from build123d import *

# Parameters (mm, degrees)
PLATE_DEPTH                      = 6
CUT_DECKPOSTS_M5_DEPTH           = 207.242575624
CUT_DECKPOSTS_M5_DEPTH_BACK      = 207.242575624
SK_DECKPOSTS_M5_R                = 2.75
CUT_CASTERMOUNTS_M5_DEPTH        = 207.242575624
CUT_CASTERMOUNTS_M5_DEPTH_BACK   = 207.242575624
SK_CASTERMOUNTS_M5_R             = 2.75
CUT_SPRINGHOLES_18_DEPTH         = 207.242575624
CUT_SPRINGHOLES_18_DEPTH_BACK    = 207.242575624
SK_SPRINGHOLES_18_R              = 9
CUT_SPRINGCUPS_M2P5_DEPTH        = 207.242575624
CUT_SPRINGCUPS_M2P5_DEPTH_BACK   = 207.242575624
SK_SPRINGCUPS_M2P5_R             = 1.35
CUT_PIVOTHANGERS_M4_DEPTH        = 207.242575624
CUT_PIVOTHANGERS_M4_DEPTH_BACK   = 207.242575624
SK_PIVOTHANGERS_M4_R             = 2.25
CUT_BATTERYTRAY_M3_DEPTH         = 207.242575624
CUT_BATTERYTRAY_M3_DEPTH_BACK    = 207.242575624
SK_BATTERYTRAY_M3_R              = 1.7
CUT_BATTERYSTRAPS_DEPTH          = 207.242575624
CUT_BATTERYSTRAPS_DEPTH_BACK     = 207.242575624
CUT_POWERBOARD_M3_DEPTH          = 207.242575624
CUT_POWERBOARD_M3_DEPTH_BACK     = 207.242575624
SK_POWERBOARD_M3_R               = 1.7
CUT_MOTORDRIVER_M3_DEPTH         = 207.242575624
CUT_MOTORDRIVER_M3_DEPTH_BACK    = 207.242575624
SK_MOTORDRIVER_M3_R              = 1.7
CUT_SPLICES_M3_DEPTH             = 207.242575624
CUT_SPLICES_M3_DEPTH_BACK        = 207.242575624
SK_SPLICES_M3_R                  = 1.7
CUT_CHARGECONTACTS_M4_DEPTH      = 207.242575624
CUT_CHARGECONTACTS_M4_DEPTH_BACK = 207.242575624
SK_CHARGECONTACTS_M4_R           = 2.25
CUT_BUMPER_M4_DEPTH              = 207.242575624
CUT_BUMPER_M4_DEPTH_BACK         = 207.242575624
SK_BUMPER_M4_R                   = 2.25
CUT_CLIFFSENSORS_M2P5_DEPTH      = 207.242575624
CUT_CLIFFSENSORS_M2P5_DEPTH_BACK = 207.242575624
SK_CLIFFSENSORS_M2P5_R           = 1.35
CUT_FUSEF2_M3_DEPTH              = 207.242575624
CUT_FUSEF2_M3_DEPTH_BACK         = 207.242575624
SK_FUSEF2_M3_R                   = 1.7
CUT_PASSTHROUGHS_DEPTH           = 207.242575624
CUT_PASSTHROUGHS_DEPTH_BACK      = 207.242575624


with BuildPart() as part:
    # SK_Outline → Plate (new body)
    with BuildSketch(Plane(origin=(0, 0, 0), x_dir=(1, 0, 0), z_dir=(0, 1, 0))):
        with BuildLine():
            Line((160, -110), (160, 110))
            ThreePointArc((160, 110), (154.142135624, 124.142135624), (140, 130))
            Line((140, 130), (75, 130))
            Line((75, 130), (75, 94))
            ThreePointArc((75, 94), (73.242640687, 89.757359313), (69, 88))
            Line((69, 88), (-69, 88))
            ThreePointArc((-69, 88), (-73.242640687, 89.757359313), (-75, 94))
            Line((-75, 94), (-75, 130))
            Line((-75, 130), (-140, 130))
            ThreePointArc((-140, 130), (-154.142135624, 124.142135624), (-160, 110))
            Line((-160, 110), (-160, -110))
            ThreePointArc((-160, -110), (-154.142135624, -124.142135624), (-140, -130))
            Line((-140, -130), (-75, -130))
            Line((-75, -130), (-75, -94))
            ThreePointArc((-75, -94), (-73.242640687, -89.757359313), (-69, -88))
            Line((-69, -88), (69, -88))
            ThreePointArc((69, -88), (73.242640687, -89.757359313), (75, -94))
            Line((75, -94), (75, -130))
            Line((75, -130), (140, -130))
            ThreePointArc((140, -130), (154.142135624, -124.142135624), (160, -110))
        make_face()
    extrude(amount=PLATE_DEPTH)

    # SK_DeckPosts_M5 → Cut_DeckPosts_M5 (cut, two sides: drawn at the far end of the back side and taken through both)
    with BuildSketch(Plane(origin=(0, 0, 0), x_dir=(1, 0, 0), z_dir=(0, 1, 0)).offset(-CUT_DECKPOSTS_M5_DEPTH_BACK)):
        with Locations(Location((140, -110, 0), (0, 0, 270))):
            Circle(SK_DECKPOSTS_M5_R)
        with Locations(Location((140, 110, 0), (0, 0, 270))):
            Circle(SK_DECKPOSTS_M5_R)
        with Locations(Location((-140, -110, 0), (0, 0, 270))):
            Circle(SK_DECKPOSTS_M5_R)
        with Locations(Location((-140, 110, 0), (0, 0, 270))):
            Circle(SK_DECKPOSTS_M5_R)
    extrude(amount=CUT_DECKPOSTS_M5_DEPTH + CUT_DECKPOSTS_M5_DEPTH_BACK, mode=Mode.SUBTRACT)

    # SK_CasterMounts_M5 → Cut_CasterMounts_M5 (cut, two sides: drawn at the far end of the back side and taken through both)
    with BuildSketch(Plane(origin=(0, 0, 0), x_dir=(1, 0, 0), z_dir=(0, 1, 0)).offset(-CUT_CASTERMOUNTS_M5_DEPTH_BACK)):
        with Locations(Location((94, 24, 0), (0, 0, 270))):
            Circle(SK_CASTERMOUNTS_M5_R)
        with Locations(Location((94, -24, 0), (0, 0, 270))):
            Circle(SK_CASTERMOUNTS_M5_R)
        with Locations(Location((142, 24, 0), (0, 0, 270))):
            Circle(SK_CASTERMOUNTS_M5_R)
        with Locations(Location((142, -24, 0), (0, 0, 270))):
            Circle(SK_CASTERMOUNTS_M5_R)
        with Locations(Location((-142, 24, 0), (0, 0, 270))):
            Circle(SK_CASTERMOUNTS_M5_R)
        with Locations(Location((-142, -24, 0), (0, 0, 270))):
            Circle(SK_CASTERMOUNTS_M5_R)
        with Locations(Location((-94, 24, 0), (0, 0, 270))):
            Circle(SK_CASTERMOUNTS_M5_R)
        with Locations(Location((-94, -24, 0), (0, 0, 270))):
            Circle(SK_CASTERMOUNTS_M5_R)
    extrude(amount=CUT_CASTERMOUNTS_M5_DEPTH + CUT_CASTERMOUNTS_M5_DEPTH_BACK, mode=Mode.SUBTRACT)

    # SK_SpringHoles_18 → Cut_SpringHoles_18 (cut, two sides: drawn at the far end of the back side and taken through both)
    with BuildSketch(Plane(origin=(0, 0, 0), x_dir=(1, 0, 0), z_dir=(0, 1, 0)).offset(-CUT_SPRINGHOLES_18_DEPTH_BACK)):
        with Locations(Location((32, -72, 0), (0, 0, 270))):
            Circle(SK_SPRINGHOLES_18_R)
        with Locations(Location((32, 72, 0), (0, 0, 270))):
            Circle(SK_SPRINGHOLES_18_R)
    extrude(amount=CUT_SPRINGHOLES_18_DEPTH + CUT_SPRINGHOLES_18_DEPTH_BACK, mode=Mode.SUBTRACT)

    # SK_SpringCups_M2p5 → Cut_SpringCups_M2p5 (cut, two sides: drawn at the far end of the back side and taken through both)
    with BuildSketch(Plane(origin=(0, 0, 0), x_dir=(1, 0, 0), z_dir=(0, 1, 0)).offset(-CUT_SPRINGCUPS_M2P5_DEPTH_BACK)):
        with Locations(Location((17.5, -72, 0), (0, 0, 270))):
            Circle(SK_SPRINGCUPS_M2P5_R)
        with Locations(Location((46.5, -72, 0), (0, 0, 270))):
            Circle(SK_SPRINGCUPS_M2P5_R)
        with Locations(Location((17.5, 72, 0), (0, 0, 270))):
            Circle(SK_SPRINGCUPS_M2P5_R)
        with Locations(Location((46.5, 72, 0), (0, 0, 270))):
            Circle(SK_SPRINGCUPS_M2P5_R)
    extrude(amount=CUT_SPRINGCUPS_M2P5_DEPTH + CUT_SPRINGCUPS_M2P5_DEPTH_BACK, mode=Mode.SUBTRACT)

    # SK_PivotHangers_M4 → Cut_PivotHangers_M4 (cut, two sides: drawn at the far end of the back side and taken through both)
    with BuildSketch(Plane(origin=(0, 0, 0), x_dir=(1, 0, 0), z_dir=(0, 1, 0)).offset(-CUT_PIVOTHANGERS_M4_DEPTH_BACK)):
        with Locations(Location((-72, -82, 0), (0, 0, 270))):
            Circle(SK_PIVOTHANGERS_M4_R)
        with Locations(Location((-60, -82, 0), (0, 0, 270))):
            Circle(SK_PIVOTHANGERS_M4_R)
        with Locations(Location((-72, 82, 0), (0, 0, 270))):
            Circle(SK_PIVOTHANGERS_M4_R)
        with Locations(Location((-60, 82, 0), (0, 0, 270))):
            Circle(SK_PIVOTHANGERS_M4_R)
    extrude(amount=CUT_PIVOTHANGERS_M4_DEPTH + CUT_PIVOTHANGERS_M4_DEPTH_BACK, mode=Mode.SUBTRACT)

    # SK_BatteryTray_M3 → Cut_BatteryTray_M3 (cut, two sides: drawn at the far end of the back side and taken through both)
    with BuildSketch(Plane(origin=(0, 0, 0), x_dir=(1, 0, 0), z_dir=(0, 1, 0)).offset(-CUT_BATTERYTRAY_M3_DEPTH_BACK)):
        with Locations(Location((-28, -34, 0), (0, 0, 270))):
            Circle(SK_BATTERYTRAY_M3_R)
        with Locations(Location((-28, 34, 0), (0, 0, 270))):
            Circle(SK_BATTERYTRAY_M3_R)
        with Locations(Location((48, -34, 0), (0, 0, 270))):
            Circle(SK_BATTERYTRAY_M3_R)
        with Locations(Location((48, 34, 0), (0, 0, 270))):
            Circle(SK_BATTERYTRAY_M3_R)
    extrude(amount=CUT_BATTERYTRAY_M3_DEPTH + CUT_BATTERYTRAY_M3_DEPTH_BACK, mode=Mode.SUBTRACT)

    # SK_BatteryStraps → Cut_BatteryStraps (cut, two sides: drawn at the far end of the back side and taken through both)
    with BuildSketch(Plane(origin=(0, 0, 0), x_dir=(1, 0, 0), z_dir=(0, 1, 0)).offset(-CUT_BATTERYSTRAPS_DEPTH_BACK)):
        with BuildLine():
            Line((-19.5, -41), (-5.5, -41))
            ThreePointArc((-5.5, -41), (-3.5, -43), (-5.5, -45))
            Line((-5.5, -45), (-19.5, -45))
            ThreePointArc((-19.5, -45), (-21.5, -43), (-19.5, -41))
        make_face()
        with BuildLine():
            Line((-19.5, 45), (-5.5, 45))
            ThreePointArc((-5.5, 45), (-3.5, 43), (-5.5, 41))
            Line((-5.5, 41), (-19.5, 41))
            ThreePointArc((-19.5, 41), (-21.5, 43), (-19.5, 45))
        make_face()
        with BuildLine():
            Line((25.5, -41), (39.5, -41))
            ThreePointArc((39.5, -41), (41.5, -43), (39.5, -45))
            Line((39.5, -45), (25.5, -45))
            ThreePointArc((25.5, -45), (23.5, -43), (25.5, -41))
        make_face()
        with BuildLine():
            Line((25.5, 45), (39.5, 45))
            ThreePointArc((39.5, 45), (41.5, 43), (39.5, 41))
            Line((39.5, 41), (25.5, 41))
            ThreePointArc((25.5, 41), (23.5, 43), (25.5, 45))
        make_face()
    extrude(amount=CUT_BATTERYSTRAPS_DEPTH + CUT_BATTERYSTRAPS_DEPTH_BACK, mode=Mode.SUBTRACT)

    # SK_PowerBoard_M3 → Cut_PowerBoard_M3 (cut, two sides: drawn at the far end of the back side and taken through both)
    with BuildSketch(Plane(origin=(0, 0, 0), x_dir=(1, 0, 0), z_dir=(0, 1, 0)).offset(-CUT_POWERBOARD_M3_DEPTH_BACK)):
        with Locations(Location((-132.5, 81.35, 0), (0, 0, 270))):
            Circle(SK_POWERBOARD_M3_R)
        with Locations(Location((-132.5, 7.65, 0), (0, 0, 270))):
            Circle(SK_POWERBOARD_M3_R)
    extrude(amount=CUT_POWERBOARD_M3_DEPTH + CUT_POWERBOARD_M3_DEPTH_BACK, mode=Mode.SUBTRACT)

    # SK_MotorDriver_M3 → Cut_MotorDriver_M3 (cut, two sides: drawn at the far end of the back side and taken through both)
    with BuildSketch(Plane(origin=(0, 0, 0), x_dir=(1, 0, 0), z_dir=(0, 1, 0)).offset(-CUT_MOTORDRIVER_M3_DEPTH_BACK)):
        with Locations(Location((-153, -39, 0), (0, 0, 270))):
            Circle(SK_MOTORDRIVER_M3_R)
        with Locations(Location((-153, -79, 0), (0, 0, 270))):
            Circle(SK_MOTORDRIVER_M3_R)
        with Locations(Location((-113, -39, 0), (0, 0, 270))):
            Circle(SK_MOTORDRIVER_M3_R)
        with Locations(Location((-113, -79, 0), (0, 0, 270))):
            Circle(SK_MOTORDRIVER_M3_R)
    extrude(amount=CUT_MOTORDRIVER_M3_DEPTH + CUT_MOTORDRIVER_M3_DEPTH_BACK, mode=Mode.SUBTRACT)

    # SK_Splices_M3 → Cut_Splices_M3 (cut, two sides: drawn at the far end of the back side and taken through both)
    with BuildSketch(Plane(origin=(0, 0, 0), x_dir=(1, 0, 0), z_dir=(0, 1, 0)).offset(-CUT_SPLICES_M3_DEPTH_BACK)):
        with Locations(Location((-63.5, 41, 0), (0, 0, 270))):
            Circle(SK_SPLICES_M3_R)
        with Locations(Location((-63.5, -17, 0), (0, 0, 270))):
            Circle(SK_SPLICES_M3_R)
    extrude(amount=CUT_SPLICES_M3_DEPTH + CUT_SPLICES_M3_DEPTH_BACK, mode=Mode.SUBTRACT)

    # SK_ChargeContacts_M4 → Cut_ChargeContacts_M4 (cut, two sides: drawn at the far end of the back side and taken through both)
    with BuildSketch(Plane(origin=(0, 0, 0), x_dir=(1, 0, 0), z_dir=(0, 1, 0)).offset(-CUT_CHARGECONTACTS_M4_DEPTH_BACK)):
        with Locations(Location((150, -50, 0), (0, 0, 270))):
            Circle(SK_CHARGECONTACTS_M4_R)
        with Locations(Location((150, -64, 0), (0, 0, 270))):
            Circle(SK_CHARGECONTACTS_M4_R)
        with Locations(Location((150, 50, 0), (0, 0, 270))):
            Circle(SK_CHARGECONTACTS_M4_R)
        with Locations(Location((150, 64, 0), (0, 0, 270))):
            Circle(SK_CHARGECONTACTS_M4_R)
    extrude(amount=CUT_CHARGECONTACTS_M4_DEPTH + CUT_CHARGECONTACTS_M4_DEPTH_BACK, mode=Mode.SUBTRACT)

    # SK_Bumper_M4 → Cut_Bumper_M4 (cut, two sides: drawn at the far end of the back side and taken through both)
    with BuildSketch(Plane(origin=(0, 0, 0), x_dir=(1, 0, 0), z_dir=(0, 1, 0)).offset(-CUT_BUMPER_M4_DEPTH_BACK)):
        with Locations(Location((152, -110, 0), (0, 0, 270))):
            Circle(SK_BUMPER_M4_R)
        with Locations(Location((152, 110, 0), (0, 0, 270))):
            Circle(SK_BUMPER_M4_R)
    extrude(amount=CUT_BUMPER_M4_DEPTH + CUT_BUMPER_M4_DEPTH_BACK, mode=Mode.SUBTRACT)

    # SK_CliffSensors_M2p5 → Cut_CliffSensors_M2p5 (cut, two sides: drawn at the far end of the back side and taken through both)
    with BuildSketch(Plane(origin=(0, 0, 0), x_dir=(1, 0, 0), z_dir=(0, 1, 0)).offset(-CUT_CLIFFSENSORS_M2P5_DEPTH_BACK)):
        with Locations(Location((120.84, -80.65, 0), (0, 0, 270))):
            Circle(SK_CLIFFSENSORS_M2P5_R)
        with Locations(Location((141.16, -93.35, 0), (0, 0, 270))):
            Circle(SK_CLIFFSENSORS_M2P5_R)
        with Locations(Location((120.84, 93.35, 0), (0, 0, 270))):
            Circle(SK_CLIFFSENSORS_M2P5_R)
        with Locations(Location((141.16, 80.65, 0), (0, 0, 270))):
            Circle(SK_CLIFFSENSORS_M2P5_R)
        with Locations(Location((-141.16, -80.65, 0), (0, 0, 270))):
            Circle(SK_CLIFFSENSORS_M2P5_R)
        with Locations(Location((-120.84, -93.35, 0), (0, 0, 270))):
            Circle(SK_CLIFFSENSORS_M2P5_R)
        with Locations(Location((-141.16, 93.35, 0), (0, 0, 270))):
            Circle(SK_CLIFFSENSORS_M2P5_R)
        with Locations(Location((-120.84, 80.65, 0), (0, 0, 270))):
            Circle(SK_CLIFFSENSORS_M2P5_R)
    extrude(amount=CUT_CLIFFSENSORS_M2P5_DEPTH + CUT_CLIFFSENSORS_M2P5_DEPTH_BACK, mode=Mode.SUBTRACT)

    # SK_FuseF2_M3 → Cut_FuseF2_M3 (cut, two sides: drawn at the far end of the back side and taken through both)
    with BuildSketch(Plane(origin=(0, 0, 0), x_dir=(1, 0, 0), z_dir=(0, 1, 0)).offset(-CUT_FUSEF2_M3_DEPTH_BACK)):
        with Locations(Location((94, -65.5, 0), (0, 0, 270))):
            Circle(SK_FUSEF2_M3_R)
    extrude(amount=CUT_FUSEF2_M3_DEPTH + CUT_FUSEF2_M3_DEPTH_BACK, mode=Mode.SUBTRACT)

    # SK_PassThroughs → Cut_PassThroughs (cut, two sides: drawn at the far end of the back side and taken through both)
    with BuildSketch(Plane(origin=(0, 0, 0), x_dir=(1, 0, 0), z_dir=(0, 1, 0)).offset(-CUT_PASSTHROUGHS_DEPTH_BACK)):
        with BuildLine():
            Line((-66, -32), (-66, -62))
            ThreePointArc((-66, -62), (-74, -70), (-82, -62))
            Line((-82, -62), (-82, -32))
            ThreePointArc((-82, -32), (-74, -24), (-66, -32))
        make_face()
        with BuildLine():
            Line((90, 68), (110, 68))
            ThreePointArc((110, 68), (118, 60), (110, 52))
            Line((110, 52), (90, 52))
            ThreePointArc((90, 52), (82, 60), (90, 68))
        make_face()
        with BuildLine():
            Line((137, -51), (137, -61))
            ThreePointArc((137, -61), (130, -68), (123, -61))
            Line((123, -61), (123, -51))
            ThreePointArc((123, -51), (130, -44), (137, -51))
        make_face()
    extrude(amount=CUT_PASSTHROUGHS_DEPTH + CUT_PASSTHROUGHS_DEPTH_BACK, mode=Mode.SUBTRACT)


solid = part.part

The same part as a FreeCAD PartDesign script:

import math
import FreeCAD as App
import Part
import Sketcher

V = App.Vector
Q = App.Units.Quantity

doc = App.newDocument("Part")
body = doc.addObject("PartDesign::Body", "Body")

# Sketch on XZ plane
sketch1 = body.newObject("Sketcher::SketchObject", "Sketch")
sketch1.AttachmentSupport = (doc.getObject("XZ_Plane"), [""])
sketch1.MapMode = "FlatFace"
sketch1.addGeometry([
    Part.LineSegment(V(160, 110, 0), V(160, -110, 0)),  # 0
    Part.ArcOfCircle(Part.Circle(V(140, -110, 0), V(0, 0, 1), 20), math.radians(-90), math.radians(0)),  # 1
    Part.LineSegment(V(140, -130, 0), V(75, -130, 0)),  # 2
    Part.LineSegment(V(75, -130, 0), V(75, -94, 0)),  # 3
    Part.ArcOfCircle(Part.Circle(V(69, -94, 0), V(0, 0, 1), 6), math.radians(0), math.radians(90)),  # 4
    Part.LineSegment(V(69, -88, 0), V(-69, -88, 0)),  # 5
    Part.ArcOfCircle(Part.Circle(V(-69, -94, 0), V(0, 0, 1), 6), math.radians(90), math.radians(180)),  # 6
    Part.LineSegment(V(-75, -94, 0), V(-75, -130, 0)),  # 7
    Part.LineSegment(V(-75, -130, 0), V(-140, -130, 0)),  # 8
    Part.ArcOfCircle(Part.Circle(V(-140, -110, 0), V(0, 0, 1), 20), math.radians(180), math.radians(270)),  # 9
    Part.LineSegment(V(-160, -110, 0), V(-160, 110, 0)),  # 10
    Part.ArcOfCircle(Part.Circle(V(-140, 110, 0), V(0, 0, 1), 20), math.radians(90), math.radians(180)),  # 11
    Part.LineSegment(V(-140, 130, 0), V(-75, 130, 0)),  # 12
    Part.LineSegment(V(-75, 130, 0), V(-75, 94, 0)),  # 13
    Part.ArcOfCircle(Part.Circle(V(-69, 94, 0), V(0, 0, 1), 6), math.radians(180), math.radians(270)),  # 14
    Part.LineSegment(V(-69, 88, 0), V(69, 88, 0)),  # 15
    Part.ArcOfCircle(Part.Circle(V(69, 94, 0), V(0, 0, 1), 6), math.radians(-90), math.radians(0)),  # 16
    Part.LineSegment(V(75, 94, 0), V(75, 130, 0)),  # 17
    Part.LineSegment(V(75, 130, 0), V(140, 130, 0)),  # 18
    Part.ArcOfCircle(Part.Circle(V(140, 110, 0), V(0, 0, 1), 20), math.radians(0), math.radians(90)),  # 19
], False)
sketch1.addConstraint([
    Sketcher.Constraint("Tangent", 0, 2, 1, 2),
    Sketcher.Constraint("Tangent", 1, 1, 2, 1),
    Sketcher.Constraint("Coincident", 2, 2, 3, 1),
    Sketcher.Constraint("Tangent", 3, 2, 4, 1),
    Sketcher.Constraint("Tangent", 4, 2, 5, 1),
    Sketcher.Constraint("Tangent", 5, 2, 6, 1),
    Sketcher.Constraint("Tangent", 6, 2, 7, 1),
    Sketcher.Constraint("Coincident", 7, 2, 8, 1),
    Sketcher.Constraint("Tangent", 8, 2, 9, 2),
    Sketcher.Constraint("Tangent", 9, 1, 10, 1),
    Sketcher.Constraint("Tangent", 10, 2, 11, 2),
    Sketcher.Constraint("Tangent", 11, 1, 12, 1),
    Sketcher.Constraint("Coincident", 12, 2, 13, 1),
    Sketcher.Constraint("Tangent", 13, 2, 14, 1),
    Sketcher.Constraint("Tangent", 14, 2, 15, 1),
    Sketcher.Constraint("Tangent", 15, 2, 16, 1),
    Sketcher.Constraint("Tangent", 16, 2, 17, 1),
    Sketcher.Constraint("Coincident", 17, 2, 18, 1),
    Sketcher.Constraint("Tangent", 18, 2, 19, 2),
    Sketcher.Constraint("Tangent", 19, 1, 0, 1),
    Sketcher.Constraint("Vertical", 0),
    Sketcher.Constraint("Horizontal", 2),
    Sketcher.Constraint("Vertical", 3),
    Sketcher.Constraint("Horizontal", 5),
    Sketcher.Constraint("Vertical", 7),
    Sketcher.Constraint("Horizontal", 8),
    Sketcher.Constraint("Vertical", 10),
    Sketcher.Constraint("Horizontal", 12),
    Sketcher.Constraint("Vertical", 13),
    Sketcher.Constraint("Horizontal", 15),
    Sketcher.Constraint("Vertical", 17),
    Sketcher.Constraint("Horizontal", 18),
    Sketcher.Constraint("Equal", 4, 6),
    Sketcher.Constraint("Equal", 1, 9),
    Sketcher.Constraint("Equal", 9, 11),
    Sketcher.Constraint("Equal", 6, 14),
    Sketcher.Constraint("Equal", 14, 16),
    Sketcher.Constraint("Equal", 11, 19),
    Sketcher.Constraint("Symmetric", 1, 3, 11, 3, -1, 1),
    Sketcher.Constraint("Symmetric", 4, 3, 14, 3, -1, 1),
    Sketcher.Constraint("Symmetric", 7, 2, 17, 2, -1, 1),
    Sketcher.Constraint("Symmetric", 2, 2, 7, 2, -2),
    Sketcher.Constraint("Radius", 1, Q("20 mm")),
    Sketcher.Constraint("Radius", 4, Q("6 mm")),
    Sketcher.Constraint("DistanceX", 2, 2, 2, 1, Q("65 mm")),
    Sketcher.Constraint("DistanceX", 5, 2, 5, 1, Q("138 mm")),
    Sketcher.Constraint("DistanceY", 0, 2, 0, 1, Q("220 mm")),
    Sketcher.Constraint("DistanceY", 3, 1, 3, 2, Q("36 mm")),
])
pad1 = body.newObject("PartDesign::Pad", "Pad")
pad1.Profile = sketch1
pad1.Length = 6
pad1.Reversed = True

# Sketch on XZ plane
sketch2 = body.newObject("Sketcher::SketchObject", "Sketch001")
sketch2.AttachmentSupport = (doc.getObject("XZ_Plane"), [""])
sketch2.MapMode = "FlatFace"
sketch2.addGeometry([
    Part.Circle(V(140, 110, 0), V(0, 0, 1), 2.8),
    Part.Circle(V(140, -110, 0), V(0, 0, 1), 2.8),
    Part.Circle(V(-140, 110, 0), V(0, 0, 1), 2.8),
    Part.Circle(V(-140, -110, 0), V(0, 0, 1), 2.8),
], False)
sketch2.addConstraint([
    Sketcher.Constraint("Equal", 0, 1),
    Sketcher.Constraint("Equal", 1, 2),
    Sketcher.Constraint("Equal", 2, 3),
    Sketcher.Constraint("Symmetric", 1, 3, 2, 3, -1, 1),
    Sketcher.Constraint("Symmetric", 0, 3, 3, 3, -1, 1),
    Sketcher.Constraint("Symmetric", 0, 3, 2, 3, -2),
    Sketcher.Constraint("Diameter", 0, Q("5.5 mm")),
    Sketcher.Constraint("DistanceX", -1, 1, 0, 3, Q("140 mm")),
    Sketcher.Constraint("DistanceY", -1, 1, 0, 3, Q("110 mm")),
])
pocket1 = body.newObject("PartDesign::Pocket", "Pocket")
pocket1.Profile = sketch2
pocket1.Type = "ThroughAll"
pocket1.Midplane = True

# Sketch on XZ plane
sketch3 = body.newObject("Sketcher::SketchObject", "Sketch002")
sketch3.AttachmentSupport = (doc.getObject("XZ_Plane"), [""])
sketch3.MapMode = "FlatFace"
sketch3.addGeometry([
    Part.Circle(V(94, -24, 0), V(0, 0, 1), 2.8),  # 0
    Part.Circle(V(94, 24, 0), V(0, 0, 1), 2.8),  # 1
    Part.Circle(V(142, -24, 0), V(0, 0, 1), 2.8),  # 2
    Part.Circle(V(142, 24, 0), V(0, 0, 1), 2.8),  # 3
    Part.Circle(V(-142, -24, 0), V(0, 0, 1), 2.8),  # 4
    Part.Circle(V(-142, 24, 0), V(0, 0, 1), 2.8),  # 5
    Part.Circle(V(-94, -24, 0), V(0, 0, 1), 2.8),  # 6
    Part.Circle(V(-94, 24, 0), V(0, 0, 1), 2.8),  # 7
], False)
sketch3.addConstraint([
    Sketcher.Constraint("Equal", 0, 1),
    Sketcher.Constraint("Equal", 1, 2),
    Sketcher.Constraint("Equal", 2, 3),
    Sketcher.Constraint("Equal", 3, 4),
    Sketcher.Constraint("Equal", 4, 5),
    Sketcher.Constraint("Equal", 5, 6),
    Sketcher.Constraint("Equal", 6, 7),
    Sketcher.Constraint("Symmetric", 3, 3, 4, 3, -1, 1),
    Sketcher.Constraint("Symmetric", 2, 3, 5, 3, -1, 1),
    Sketcher.Constraint("Symmetric", 1, 3, 6, 3, -1, 1),
    Sketcher.Constraint("Symmetric", 0, 3, 7, 3, -1, 1),
    Sketcher.Constraint("Symmetric", 2, 3, 4, 3, -2),
    Sketcher.Constraint("Symmetric", 0, 3, 6, 3, -2),
    Sketcher.Constraint("Horizontal", 0, 3, 2, 3),
    Sketcher.Constraint("Diameter", 0, Q("5.5 mm")),
    Sketcher.Constraint("DistanceX", -1, 1, 0, 3, Q("94 mm")),
    Sketcher.Constraint("DistanceY", 0, 3, -1, 1, Q("24 mm")),
    Sketcher.Constraint("DistanceX", -1, 1, 2, 3, Q("142 mm")),
])
pocket2 = body.newObject("PartDesign::Pocket", "Pocket001")
pocket2.Profile = sketch3
pocket2.Type = "ThroughAll"
pocket2.Midplane = True

# Sketch on XZ plane
sketch4 = body.newObject("Sketcher::SketchObject", "Sketch003")
sketch4.AttachmentSupport = (doc.getObject("XZ_Plane"), [""])
sketch4.MapMode = "FlatFace"
sketch4.addGeometry([
    Part.Circle(V(32, 72, 0), V(0, 0, 1), 9),
    Part.Circle(V(32, -72, 0), V(0, 0, 1), 9),
], False)
sketch4.addConstraint([
    Sketcher.Constraint("Equal", 0, 1),
    Sketcher.Constraint("Symmetric", 0, 3, 1, 3, -1),
    Sketcher.Constraint("Diameter", 0, Q("18 mm")),
    Sketcher.Constraint("DistanceX", -1, 1, 0, 3, Q("32 mm")),
    Sketcher.Constraint("DistanceY", -1, 1, 0, 3, Q("72 mm")),
])
pocket3 = body.newObject("PartDesign::Pocket", "Pocket002")
pocket3.Profile = sketch4
pocket3.Type = "ThroughAll"
pocket3.Midplane = True

# Sketch on XZ plane
sketch5 = body.newObject("Sketcher::SketchObject", "Sketch004")
sketch5.AttachmentSupport = (doc.getObject("XZ_Plane"), [""])
sketch5.MapMode = "FlatFace"
sketch5.addGeometry([
    Part.Circle(V(17.5, 72, 0), V(0, 0, 1), 1.4),
    Part.Circle(V(46.5, 72, 0), V(0, 0, 1), 1.4),
    Part.Circle(V(17.5, -72, 0), V(0, 0, 1), 1.4),
    Part.Circle(V(46.5, -72, 0), V(0, 0, 1), 1.4),
], False)
sketch5.addConstraint([
    Sketcher.Constraint("Equal", 0, 1),
    Sketcher.Constraint("Equal", 1, 2),
    Sketcher.Constraint("Equal", 2, 3),
    Sketcher.Constraint("Symmetric", 0, 3, 2, 3, -1),
    Sketcher.Constraint("Symmetric", 1, 3, 3, 3, -1),
    Sketcher.Constraint("Horizontal", 0, 3, 1, 3),
    Sketcher.Constraint("Diameter", 0, Q("2.7 mm")),
    Sketcher.Constraint("DistanceY", -1, 1, 0, 3, Q("72 mm")),
    Sketcher.Constraint("DistanceX", 0, 3, 1, 3, Q("29 mm")),
    Sketcher.Constraint("DistanceX", -1, 1, 0, 3, Q("17.5 mm")),
])
pocket4 = body.newObject("PartDesign::Pocket", "Pocket003")
pocket4.Profile = sketch5
pocket4.Type = "ThroughAll"
pocket4.Midplane = True

# Sketch on XZ plane
sketch6 = body.newObject("Sketcher::SketchObject", "Sketch005")
sketch6.AttachmentSupport = (doc.getObject("XZ_Plane"), [""])
sketch6.MapMode = "FlatFace"
sketch6.addGeometry([
    Part.Circle(V(-72, 82, 0), V(0, 0, 1), 2.2),
    Part.Circle(V(-60, 82, 0), V(0, 0, 1), 2.2),
    Part.Circle(V(-72, -82, 0), V(0, 0, 1), 2.2),
    Part.Circle(V(-60, -82, 0), V(0, 0, 1), 2.2),
], False)
sketch6.addConstraint([
    Sketcher.Constraint("Equal", 0, 1),
    Sketcher.Constraint("Equal", 1, 2),
    Sketcher.Constraint("Equal", 2, 3),
    Sketcher.Constraint("Symmetric", 0, 3, 2, 3, -1),
    Sketcher.Constraint("Symmetric", 1, 3, 3, 3, -1),
    Sketcher.Constraint("Horizontal", 0, 3, 1, 3),
    Sketcher.Constraint("Diameter", 0, Q("4.5 mm")),
    Sketcher.Constraint("DistanceX", 0, 3, -1, 1, Q("72 mm")),
    Sketcher.Constraint("DistanceY", -1, 1, 0, 3, Q("82 mm")),
    Sketcher.Constraint("DistanceX", 1, 3, -1, 1, Q("60 mm")),
])
pocket5 = body.newObject("PartDesign::Pocket", "Pocket004")
pocket5.Profile = sketch6
pocket5.Type = "ThroughAll"
pocket5.Midplane = True

# Sketch on XZ plane
sketch7 = body.newObject("Sketcher::SketchObject", "Sketch006")
sketch7.AttachmentSupport = (doc.getObject("XZ_Plane"), [""])
sketch7.MapMode = "FlatFace"
sketch7.addGeometry([
    Part.Circle(V(-28, 34, 0), V(0, 0, 1), 1.7),
    Part.Circle(V(-28, -34, 0), V(0, 0, 1), 1.7),
    Part.Circle(V(48, 34, 0), V(0, 0, 1), 1.7),
    Part.Circle(V(48, -34, 0), V(0, 0, 1), 1.7),
], False)
sketch7.addConstraint([
    Sketcher.Constraint("Equal", 0, 1),
    Sketcher.Constraint("Equal", 1, 2),
    Sketcher.Constraint("Equal", 2, 3),
    Sketcher.Constraint("Symmetric", 0, 3, 1, 3, -1),
    Sketcher.Constraint("Symmetric", 2, 3, 3, 3, -1),
    Sketcher.Constraint("Horizontal", 0, 3, 2, 3),
    Sketcher.Constraint("Diameter", 0, Q("3.4 mm")),
    Sketcher.Constraint("DistanceX", 0, 3, -1, 1, Q("28 mm")),
    Sketcher.Constraint("DistanceY", -1, 1, 0, 3, Q("34 mm")),
    Sketcher.Constraint("DistanceX", -1, 1, 2, 3, Q("48 mm")),
])
pocket6 = body.newObject("PartDesign::Pocket", "Pocket005")
pocket6.Profile = sketch7
pocket6.Type = "ThroughAll"
pocket6.Midplane = True

# Sketch on XZ plane
sketch8 = body.newObject("Sketcher::SketchObject", "Sketch007")
sketch8.AttachmentSupport = (doc.getObject("XZ_Plane"), [""])
sketch8.MapMode = "FlatFace"
sketch8.addGeometry([
    Part.LineSegment(V(-5.5, 41, 0), V(-19.5, 41, 0)),  # 0
    Part.ArcOfCircle(Part.Circle(V(-19.5, 43, 0), V(0, 0, 1), 2), math.radians(90), math.radians(270)),  # 1
    Part.LineSegment(V(-19.5, 45, 0), V(-5.5, 45, 0)),  # 2
    Part.ArcOfCircle(Part.Circle(V(-5.5, 43, 0), V(0, 0, 1), 2), math.radians(-90), math.radians(90)),  # 3
    Part.LineSegment(V(-5.5, -45, 0), V(-19.5, -45, 0)),  # 4
    Part.ArcOfCircle(Part.Circle(V(-19.5, -43, 0), V(0, 0, 1), 2), math.radians(90), math.radians(270)),  # 5
    Part.LineSegment(V(-19.5, -41, 0), V(-5.5, -41, 0)),  # 6
    Part.ArcOfCircle(Part.Circle(V(-5.5, -43, 0), V(0, 0, 1), 2), math.radians(-90), math.radians(90)),  # 7
    Part.LineSegment(V(39.5, 41, 0), V(25.5, 41, 0)),  # 8
    Part.ArcOfCircle(Part.Circle(V(25.5, 43, 0), V(0, 0, 1), 2), math.radians(90), math.radians(270)),  # 9
    Part.LineSegment(V(25.5, 45, 0), V(39.5, 45, 0)),  # 10
    Part.ArcOfCircle(Part.Circle(V(39.5, 43, 0), V(0, 0, 1), 2), math.radians(-90), math.radians(90)),  # 11
    Part.LineSegment(V(39.5, -45, 0), V(25.5, -45, 0)),  # 12
    Part.ArcOfCircle(Part.Circle(V(25.5, -43, 0), V(0, 0, 1), 2), math.radians(90), math.radians(270)),  # 13
    Part.LineSegment(V(25.5, -41, 0), V(39.5, -41, 0)),  # 14
    Part.ArcOfCircle(Part.Circle(V(39.5, -43, 0), V(0, 0, 1), 2), math.radians(-90), math.radians(90)),  # 15
], False)
sketch8.addConstraint([
    Sketcher.Constraint("Tangent", 0, 2, 1, 2),
    Sketcher.Constraint("Tangent", 1, 1, 2, 1),
    Sketcher.Constraint("Tangent", 2, 2, 3, 2),
    Sketcher.Constraint("Tangent", 3, 1, 0, 1),
    Sketcher.Constraint("Tangent", 4, 2, 5, 2),
    Sketcher.Constraint("Tangent", 5, 1, 6, 1),
    Sketcher.Constraint("Tangent", 6, 2, 7, 2),
    Sketcher.Constraint("Tangent", 7, 1, 4, 1),
    Sketcher.Constraint("Tangent", 8, 2, 9, 2),
    Sketcher.Constraint("Tangent", 9, 1, 10, 1),
    Sketcher.Constraint("Tangent", 10, 2, 11, 2),
    Sketcher.Constraint("Tangent", 11, 1, 8, 1),
    Sketcher.Constraint("Tangent", 12, 2, 13, 2),
    Sketcher.Constraint("Tangent", 13, 1, 14, 1),
    Sketcher.Constraint("Tangent", 14, 2, 15, 2),
    Sketcher.Constraint("Tangent", 15, 1, 12, 1),
    Sketcher.Constraint("Horizontal", 0),
    Sketcher.Constraint("Horizontal", 2),
    Sketcher.Constraint("Horizontal", 4),
    Sketcher.Constraint("Horizontal", 6),
    Sketcher.Constraint("Horizontal", 8),
    Sketcher.Constraint("Horizontal", 10),
    Sketcher.Constraint("Horizontal", 12),
    Sketcher.Constraint("Horizontal", 14),
    Sketcher.Constraint("Equal", 3, 5),
    Sketcher.Constraint("Equal", 7, 9),
    Sketcher.Constraint("Equal", 11, 13),
    Sketcher.Constraint("Symmetric", 1, 3, 5, 3, -1),
    Sketcher.Constraint("Symmetric", 9, 3, 13, 3, -1),
    Sketcher.Constraint("Horizontal", 3, 3, 9, 3),
    Sketcher.Constraint("Vertical", 3, 3, 7, 3),
    Sketcher.Constraint("Vertical", 11, 3, 15, 3),
    Sketcher.Constraint("Equal", 6, 8),
    Sketcher.Constraint("Radius", 1, Q("2 mm")),
    Sketcher.Constraint("DistanceX", 0, 2, 0, 1, Q("14 mm")),
    Sketcher.Constraint("DistanceY", -1, 1, 1, 3, Q("43 mm")),
    Sketcher.Constraint("DistanceX", 3, 3, 9, 3, Q("31 mm")),
    Sketcher.Constraint("DistanceX", 1, 3, -1, 1, Q("19.5 mm")),
])
pocket7 = body.newObject("PartDesign::Pocket", "Pocket006")
pocket7.Profile = sketch8
pocket7.Type = "ThroughAll"
pocket7.Midplane = True

# Sketch on XZ plane
sketch9 = body.newObject("Sketcher::SketchObject", "Sketch008")
sketch9.AttachmentSupport = (doc.getObject("XZ_Plane"), [""])
sketch9.MapMode = "FlatFace"
sketch9.addGeometry([
    Part.Circle(V(-132.5, -81.3, 0), V(0, 0, 1), 1.7),
    Part.Circle(V(-132.5, -7.7, 0), V(0, 0, 1), 1.7),
], False)
sketch9.addConstraint([
    Sketcher.Constraint("Equal", 0, 1),
    Sketcher.Constraint("Vertical", 0, 3, 1, 3),
    Sketcher.Constraint("Diameter", 0, Q("3.4 mm")),
    Sketcher.Constraint("DistanceX", 0, 3, -1, 1, Q("132.5 mm")),
    Sketcher.Constraint("DistanceY", 0, 3, 1, 3, Q("73.7 mm")),
    Sketcher.Constraint("DistanceY", 0, 3, -1, 1, Q("81.35 mm")),
])
pocket8 = body.newObject("PartDesign::Pocket", "Pocket007")
pocket8.Profile = sketch9
pocket8.Type = "ThroughAll"
pocket8.Midplane = True

# Sketch on XZ plane
sketch10 = body.newObject("Sketcher::SketchObject", "Sketch009")
sketch10.AttachmentSupport = (doc.getObject("XZ_Plane"), [""])
sketch10.MapMode = "FlatFace"
sketch10.addGeometry([
    Part.Circle(V(-153, 39, 0), V(0, 0, 1), 1.7),
    Part.Circle(V(-153, 79, 0), V(0, 0, 1), 1.7),
    Part.Circle(V(-113, 39, 0), V(0, 0, 1), 1.7),
    Part.Circle(V(-113, 79, 0), V(0, 0, 1), 1.7),
], False)
sketch10.addConstraint([
    Sketcher.Constraint("Equal", 0, 1),
    Sketcher.Constraint("Equal", 1, 2),
    Sketcher.Constraint("Equal", 2, 3),
    Sketcher.Constraint("Horizontal", 0, 3, 2, 3),
    Sketcher.Constraint("Horizontal", 1, 3, 3, 3),
    Sketcher.Constraint("Vertical", 0, 3, 1, 3),
    Sketcher.Constraint("Vertical", 2, 3, 3, 3),
    Sketcher.Constraint("Diameter", 0, Q("3.4 mm")),
    Sketcher.Constraint("DistanceX", 0, 3, -1, 1, Q("153 mm")),
    Sketcher.Constraint("DistanceY", -1, 1, 0, 3, Q("39 mm")),
    Sketcher.Constraint("DistanceY", -1, 1, 1, 3, Q("79 mm")),
    Sketcher.Constraint("DistanceX", 2, 3, -1, 1, Q("113 mm")),
])
pocket9 = body.newObject("PartDesign::Pocket", "Pocket008")
pocket9.Profile = sketch10
pocket9.Type = "ThroughAll"
pocket9.Midplane = True

# Sketch on XZ plane
sketch11 = body.newObject("Sketcher::SketchObject", "Sketch010")
sketch11.AttachmentSupport = (doc.getObject("XZ_Plane"), [""])
sketch11.MapMode = "FlatFace"
sketch11.addGeometry([
    Part.Circle(V(-63.5, -41, 0), V(0, 0, 1), 1.7),
    Part.Circle(V(-63.5, 17, 0), V(0, 0, 1), 1.7),
], False)
sketch11.addConstraint([
    Sketcher.Constraint("Equal", 0, 1),
    Sketcher.Constraint("Vertical", 0, 3, 1, 3),
    Sketcher.Constraint("Diameter", 0, Q("3.4 mm")),
    Sketcher.Constraint("DistanceY", 0, 3, -1, 1, Q("41 mm")),
    Sketcher.Constraint("DistanceY", -1, 1, 1, 3, Q("17 mm")),
    Sketcher.Constraint("DistanceX", 0, 3, -1, 1, Q("63.5 mm")),
])
pocket10 = body.newObject("PartDesign::Pocket", "Pocket009")
pocket10.Profile = sketch11
pocket10.Type = "ThroughAll"
pocket10.Midplane = True

# Sketch on XZ plane
sketch12 = body.newObject("Sketcher::SketchObject", "Sketch011")
sketch12.AttachmentSupport = (doc.getObject("XZ_Plane"), [""])
sketch12.MapMode = "FlatFace"
sketch12.addGeometry([
    Part.Circle(V(150, 50, 0), V(0, 0, 1), 2.2),
    Part.Circle(V(150, 64, 0), V(0, 0, 1), 2.2),
    Part.Circle(V(150, -50, 0), V(0, 0, 1), 2.2),
    Part.Circle(V(150, -64, 0), V(0, 0, 1), 2.2),
], False)
sketch12.addConstraint([
    Sketcher.Constraint("Equal", 0, 1),
    Sketcher.Constraint("Equal", 1, 2),
    Sketcher.Constraint("Equal", 2, 3),
    Sketcher.Constraint("Symmetric", 0, 3, 2, 3, -1),
    Sketcher.Constraint("Symmetric", 1, 3, 3, 3, -1),
    Sketcher.Constraint("Vertical", 0, 3, 1, 3),
    Sketcher.Constraint("Diameter", 0, Q("4.5 mm")),
    Sketcher.Constraint("DistanceX", -1, 1, 0, 3, Q("150 mm")),
    Sketcher.Constraint("DistanceY", -1, 1, 0, 3, Q("50 mm")),
    Sketcher.Constraint("DistanceY", -1, 1, 1, 3, Q("64 mm")),
])
pocket11 = body.newObject("PartDesign::Pocket", "Pocket010")
pocket11.Profile = sketch12
pocket11.Type = "ThroughAll"
pocket11.Midplane = True

# Sketch on XZ plane
sketch13 = body.newObject("Sketcher::SketchObject", "Sketch012")
sketch13.AttachmentSupport = (doc.getObject("XZ_Plane"), [""])
sketch13.MapMode = "FlatFace"
sketch13.addGeometry([
    Part.Circle(V(152, 110, 0), V(0, 0, 1), 2.2),
    Part.Circle(V(152, -110, 0), V(0, 0, 1), 2.2),
], False)
sketch13.addConstraint([
    Sketcher.Constraint("Equal", 0, 1),
    Sketcher.Constraint("Symmetric", 0, 3, 1, 3, -1),
    Sketcher.Constraint("Diameter", 0, Q("4.5 mm")),
    Sketcher.Constraint("DistanceX", -1, 1, 0, 3, Q("152 mm")),
    Sketcher.Constraint("DistanceY", -1, 1, 0, 3, Q("110 mm")),
])
pocket12 = body.newObject("PartDesign::Pocket", "Pocket011")
pocket12.Profile = sketch13
pocket12.Type = "ThroughAll"
pocket12.Midplane = True

# Sketch on XZ plane
sketch14 = body.newObject("Sketcher::SketchObject", "Sketch013")
sketch14.AttachmentSupport = (doc.getObject("XZ_Plane"), [""])
sketch14.MapMode = "FlatFace"
sketch14.addGeometry([
    Part.Circle(V(120.8, 80.7, 0), V(0, 0, 1), 1.4),  # 0
    Part.Circle(V(141.2, 93.3, 0), V(0, 0, 1), 1.4),  # 1
    Part.Circle(V(120.8, -93.3, 0), V(0, 0, 1), 1.4),  # 2
    Part.Circle(V(141.2, -80.7, 0), V(0, 0, 1), 1.4),  # 3
    Part.Circle(V(-141.2, 80.7, 0), V(0, 0, 1), 1.4),  # 4
    Part.Circle(V(-120.8, 93.3, 0), V(0, 0, 1), 1.4),  # 5
    Part.Circle(V(-141.2, -93.3, 0), V(0, 0, 1), 1.4),  # 6
    Part.Circle(V(-120.8, -80.7, 0), V(0, 0, 1), 1.4),  # 7
], False)
sketch14.addConstraint([
    Sketcher.Constraint("Equal", 0, 1),
    Sketcher.Constraint("Equal", 1, 2),
    Sketcher.Constraint("Equal", 2, 3),
    Sketcher.Constraint("Equal", 3, 4),
    Sketcher.Constraint("Equal", 4, 5),
    Sketcher.Constraint("Equal", 5, 6),
    Sketcher.Constraint("Equal", 6, 7),
    Sketcher.Constraint("Symmetric", 3, 3, 4, 3, -1, 1),
    Sketcher.Constraint("Symmetric", 2, 3, 5, 3, -1, 1),
    Sketcher.Constraint("Symmetric", 1, 3, 6, 3, -1, 1),
    Sketcher.Constraint("Symmetric", 0, 3, 7, 3, -1, 1),
    Sketcher.Constraint("Horizontal", 0, 3, 4, 3),
    Sketcher.Constraint("Horizontal", 1, 3, 5, 3),
    Sketcher.Constraint("Vertical", 0, 3, 2, 3),
    Sketcher.Constraint("Vertical", 1, 3, 3, 3),
    Sketcher.Constraint("Diameter", 0, Q("2.7 mm")),
    Sketcher.Constraint("DistanceY", 2, 3, 0, 3, Q("174 mm")),
    Sketcher.Constraint("DistanceX", 4, 3, 0, 3, Q("262 mm")),
    Sketcher.Constraint("DistanceY", 0, 3, 1, 3, Q("12.7 mm")),
    Sketcher.Constraint("DistanceX", -1, 1, 0, 3, Q("120.84 mm")),
])
pocket13 = body.newObject("PartDesign::Pocket", "Pocket012")
pocket13.Profile = sketch14
pocket13.Type = "ThroughAll"
pocket13.Midplane = True

# Sketch on XZ plane
sketch15 = body.newObject("Sketcher::SketchObject", "Sketch014")
sketch15.AttachmentSupport = (doc.getObject("XZ_Plane"), [""])
sketch15.MapMode = "FlatFace"
sketch15.addGeometry(Part.Circle(V(94, 65.5, 0), V(0, 0, 1), 1.7), False)
sketch15.addConstraint([
    Sketcher.Constraint("Diameter", 0, Q("3.4 mm")),
    Sketcher.Constraint("DistanceX", -1, 1, 0, 3, Q("94 mm")),
    Sketcher.Constraint("DistanceY", -1, 1, 0, 3, Q("65.5 mm")),
])
pocket14 = body.newObject("PartDesign::Pocket", "Pocket013")
pocket14.Profile = sketch15
pocket14.Type = "ThroughAll"
pocket14.Midplane = True

# Sketch on XZ plane
sketch16 = body.newObject("Sketcher::SketchObject", "Sketch015")
sketch16.AttachmentSupport = (doc.getObject("XZ_Plane"), [""])
sketch16.MapMode = "FlatFace"
sketch16.addGeometry([
    Part.LineSegment(V(-66, 62, 0), V(-66, 32, 0)),  # 0
    Part.ArcOfCircle(Part.Circle(V(-74, 32, 0), V(0, 0, 1), 8), math.radians(180), math.radians(360)),  # 1
    Part.LineSegment(V(-82, 32, 0), V(-82, 62, 0)),  # 2
    Part.ArcOfCircle(Part.Circle(V(-74, 62, 0), V(0, 0, 1), 8), math.radians(0), math.radians(180)),  # 3
    Part.LineSegment(V(110, -68, 0), V(90, -68, 0)),  # 4
    Part.ArcOfCircle(Part.Circle(V(90, -60, 0), V(0, 0, 1), 8), math.radians(90), math.radians(270)),  # 5
    Part.LineSegment(V(90, -52, 0), V(110, -52, 0)),  # 6
    Part.ArcOfCircle(Part.Circle(V(110, -60, 0), V(0, 0, 1), 8), math.radians(-90), math.radians(90)),  # 7
    Part.LineSegment(V(137, 61, 0), V(137, 51, 0)),  # 8
    Part.ArcOfCircle(Part.Circle(V(130, 51, 0), V(0, 0, 1), 7), math.radians(180), math.radians(360)),  # 9
    Part.LineSegment(V(123, 51, 0), V(123, 61, 0)),  # 10
    Part.ArcOfCircle(Part.Circle(V(130, 61, 0), V(0, 0, 1), 7), math.radians(0), math.radians(180)),  # 11
], False)
sketch16.addConstraint([
    Sketcher.Constraint("Tangent", 0, 2, 1, 2),
    Sketcher.Constraint("Tangent", 1, 1, 2, 1),
    Sketcher.Constraint("Tangent", 2, 2, 3, 2),
    Sketcher.Constraint("Tangent", 3, 1, 0, 1),
    Sketcher.Constraint("Tangent", 4, 2, 5, 2),
    Sketcher.Constraint("Tangent", 5, 1, 6, 1),
    Sketcher.Constraint("Tangent", 6, 2, 7, 2),
    Sketcher.Constraint("Tangent", 7, 1, 4, 1),
    Sketcher.Constraint("Tangent", 8, 2, 9, 2),
    Sketcher.Constraint("Tangent", 9, 1, 10, 1),
    Sketcher.Constraint("Tangent", 10, 2, 11, 2),
    Sketcher.Constraint("Tangent", 11, 1, 8, 1),
    Sketcher.Constraint("Vertical", 0),
    Sketcher.Constraint("Vertical", 2),
    Sketcher.Constraint("Horizontal", 4),
    Sketcher.Constraint("Horizontal", 6),
    Sketcher.Constraint("Vertical", 8),
    Sketcher.Constraint("Vertical", 10),
    Sketcher.Constraint("Equal", 3, 5),
    Sketcher.Constraint("Radius", 1, Q("8 mm")),
    Sketcher.Constraint("Radius", 9, Q("7 mm")),
    Sketcher.Constraint("DistanceX", 4, 2, 4, 1, Q("20 mm")),
    Sketcher.Constraint("DistanceY", 0, 2, 0, 1, Q("30 mm")),
    Sketcher.Constraint("DistanceY", 8, 2, 8, 1, Q("10 mm")),
    Sketcher.Constraint("DistanceX", 1, 3, -1, 1, Q("74 mm")),
    Sketcher.Constraint("DistanceY", -1, 1, 1, 3, Q("32 mm")),
    Sketcher.Constraint("DistanceX", -1, 1, 5, 3, Q("90 mm")),
    Sketcher.Constraint("DistanceY", 5, 3, -1, 1, Q("60 mm")),
    Sketcher.Constraint("DistanceX", -1, 1, 9, 3, Q("130 mm")),
    Sketcher.Constraint("DistanceY", -1, 1, 9, 3, Q("51 mm")),
])
pocket15 = body.newObject("PartDesign::Pocket", "Pocket014")
pocket15.Profile = sketch16
pocket15.Type = "ThroughAll"
pocket15.Midplane = True

doc.recompute()
